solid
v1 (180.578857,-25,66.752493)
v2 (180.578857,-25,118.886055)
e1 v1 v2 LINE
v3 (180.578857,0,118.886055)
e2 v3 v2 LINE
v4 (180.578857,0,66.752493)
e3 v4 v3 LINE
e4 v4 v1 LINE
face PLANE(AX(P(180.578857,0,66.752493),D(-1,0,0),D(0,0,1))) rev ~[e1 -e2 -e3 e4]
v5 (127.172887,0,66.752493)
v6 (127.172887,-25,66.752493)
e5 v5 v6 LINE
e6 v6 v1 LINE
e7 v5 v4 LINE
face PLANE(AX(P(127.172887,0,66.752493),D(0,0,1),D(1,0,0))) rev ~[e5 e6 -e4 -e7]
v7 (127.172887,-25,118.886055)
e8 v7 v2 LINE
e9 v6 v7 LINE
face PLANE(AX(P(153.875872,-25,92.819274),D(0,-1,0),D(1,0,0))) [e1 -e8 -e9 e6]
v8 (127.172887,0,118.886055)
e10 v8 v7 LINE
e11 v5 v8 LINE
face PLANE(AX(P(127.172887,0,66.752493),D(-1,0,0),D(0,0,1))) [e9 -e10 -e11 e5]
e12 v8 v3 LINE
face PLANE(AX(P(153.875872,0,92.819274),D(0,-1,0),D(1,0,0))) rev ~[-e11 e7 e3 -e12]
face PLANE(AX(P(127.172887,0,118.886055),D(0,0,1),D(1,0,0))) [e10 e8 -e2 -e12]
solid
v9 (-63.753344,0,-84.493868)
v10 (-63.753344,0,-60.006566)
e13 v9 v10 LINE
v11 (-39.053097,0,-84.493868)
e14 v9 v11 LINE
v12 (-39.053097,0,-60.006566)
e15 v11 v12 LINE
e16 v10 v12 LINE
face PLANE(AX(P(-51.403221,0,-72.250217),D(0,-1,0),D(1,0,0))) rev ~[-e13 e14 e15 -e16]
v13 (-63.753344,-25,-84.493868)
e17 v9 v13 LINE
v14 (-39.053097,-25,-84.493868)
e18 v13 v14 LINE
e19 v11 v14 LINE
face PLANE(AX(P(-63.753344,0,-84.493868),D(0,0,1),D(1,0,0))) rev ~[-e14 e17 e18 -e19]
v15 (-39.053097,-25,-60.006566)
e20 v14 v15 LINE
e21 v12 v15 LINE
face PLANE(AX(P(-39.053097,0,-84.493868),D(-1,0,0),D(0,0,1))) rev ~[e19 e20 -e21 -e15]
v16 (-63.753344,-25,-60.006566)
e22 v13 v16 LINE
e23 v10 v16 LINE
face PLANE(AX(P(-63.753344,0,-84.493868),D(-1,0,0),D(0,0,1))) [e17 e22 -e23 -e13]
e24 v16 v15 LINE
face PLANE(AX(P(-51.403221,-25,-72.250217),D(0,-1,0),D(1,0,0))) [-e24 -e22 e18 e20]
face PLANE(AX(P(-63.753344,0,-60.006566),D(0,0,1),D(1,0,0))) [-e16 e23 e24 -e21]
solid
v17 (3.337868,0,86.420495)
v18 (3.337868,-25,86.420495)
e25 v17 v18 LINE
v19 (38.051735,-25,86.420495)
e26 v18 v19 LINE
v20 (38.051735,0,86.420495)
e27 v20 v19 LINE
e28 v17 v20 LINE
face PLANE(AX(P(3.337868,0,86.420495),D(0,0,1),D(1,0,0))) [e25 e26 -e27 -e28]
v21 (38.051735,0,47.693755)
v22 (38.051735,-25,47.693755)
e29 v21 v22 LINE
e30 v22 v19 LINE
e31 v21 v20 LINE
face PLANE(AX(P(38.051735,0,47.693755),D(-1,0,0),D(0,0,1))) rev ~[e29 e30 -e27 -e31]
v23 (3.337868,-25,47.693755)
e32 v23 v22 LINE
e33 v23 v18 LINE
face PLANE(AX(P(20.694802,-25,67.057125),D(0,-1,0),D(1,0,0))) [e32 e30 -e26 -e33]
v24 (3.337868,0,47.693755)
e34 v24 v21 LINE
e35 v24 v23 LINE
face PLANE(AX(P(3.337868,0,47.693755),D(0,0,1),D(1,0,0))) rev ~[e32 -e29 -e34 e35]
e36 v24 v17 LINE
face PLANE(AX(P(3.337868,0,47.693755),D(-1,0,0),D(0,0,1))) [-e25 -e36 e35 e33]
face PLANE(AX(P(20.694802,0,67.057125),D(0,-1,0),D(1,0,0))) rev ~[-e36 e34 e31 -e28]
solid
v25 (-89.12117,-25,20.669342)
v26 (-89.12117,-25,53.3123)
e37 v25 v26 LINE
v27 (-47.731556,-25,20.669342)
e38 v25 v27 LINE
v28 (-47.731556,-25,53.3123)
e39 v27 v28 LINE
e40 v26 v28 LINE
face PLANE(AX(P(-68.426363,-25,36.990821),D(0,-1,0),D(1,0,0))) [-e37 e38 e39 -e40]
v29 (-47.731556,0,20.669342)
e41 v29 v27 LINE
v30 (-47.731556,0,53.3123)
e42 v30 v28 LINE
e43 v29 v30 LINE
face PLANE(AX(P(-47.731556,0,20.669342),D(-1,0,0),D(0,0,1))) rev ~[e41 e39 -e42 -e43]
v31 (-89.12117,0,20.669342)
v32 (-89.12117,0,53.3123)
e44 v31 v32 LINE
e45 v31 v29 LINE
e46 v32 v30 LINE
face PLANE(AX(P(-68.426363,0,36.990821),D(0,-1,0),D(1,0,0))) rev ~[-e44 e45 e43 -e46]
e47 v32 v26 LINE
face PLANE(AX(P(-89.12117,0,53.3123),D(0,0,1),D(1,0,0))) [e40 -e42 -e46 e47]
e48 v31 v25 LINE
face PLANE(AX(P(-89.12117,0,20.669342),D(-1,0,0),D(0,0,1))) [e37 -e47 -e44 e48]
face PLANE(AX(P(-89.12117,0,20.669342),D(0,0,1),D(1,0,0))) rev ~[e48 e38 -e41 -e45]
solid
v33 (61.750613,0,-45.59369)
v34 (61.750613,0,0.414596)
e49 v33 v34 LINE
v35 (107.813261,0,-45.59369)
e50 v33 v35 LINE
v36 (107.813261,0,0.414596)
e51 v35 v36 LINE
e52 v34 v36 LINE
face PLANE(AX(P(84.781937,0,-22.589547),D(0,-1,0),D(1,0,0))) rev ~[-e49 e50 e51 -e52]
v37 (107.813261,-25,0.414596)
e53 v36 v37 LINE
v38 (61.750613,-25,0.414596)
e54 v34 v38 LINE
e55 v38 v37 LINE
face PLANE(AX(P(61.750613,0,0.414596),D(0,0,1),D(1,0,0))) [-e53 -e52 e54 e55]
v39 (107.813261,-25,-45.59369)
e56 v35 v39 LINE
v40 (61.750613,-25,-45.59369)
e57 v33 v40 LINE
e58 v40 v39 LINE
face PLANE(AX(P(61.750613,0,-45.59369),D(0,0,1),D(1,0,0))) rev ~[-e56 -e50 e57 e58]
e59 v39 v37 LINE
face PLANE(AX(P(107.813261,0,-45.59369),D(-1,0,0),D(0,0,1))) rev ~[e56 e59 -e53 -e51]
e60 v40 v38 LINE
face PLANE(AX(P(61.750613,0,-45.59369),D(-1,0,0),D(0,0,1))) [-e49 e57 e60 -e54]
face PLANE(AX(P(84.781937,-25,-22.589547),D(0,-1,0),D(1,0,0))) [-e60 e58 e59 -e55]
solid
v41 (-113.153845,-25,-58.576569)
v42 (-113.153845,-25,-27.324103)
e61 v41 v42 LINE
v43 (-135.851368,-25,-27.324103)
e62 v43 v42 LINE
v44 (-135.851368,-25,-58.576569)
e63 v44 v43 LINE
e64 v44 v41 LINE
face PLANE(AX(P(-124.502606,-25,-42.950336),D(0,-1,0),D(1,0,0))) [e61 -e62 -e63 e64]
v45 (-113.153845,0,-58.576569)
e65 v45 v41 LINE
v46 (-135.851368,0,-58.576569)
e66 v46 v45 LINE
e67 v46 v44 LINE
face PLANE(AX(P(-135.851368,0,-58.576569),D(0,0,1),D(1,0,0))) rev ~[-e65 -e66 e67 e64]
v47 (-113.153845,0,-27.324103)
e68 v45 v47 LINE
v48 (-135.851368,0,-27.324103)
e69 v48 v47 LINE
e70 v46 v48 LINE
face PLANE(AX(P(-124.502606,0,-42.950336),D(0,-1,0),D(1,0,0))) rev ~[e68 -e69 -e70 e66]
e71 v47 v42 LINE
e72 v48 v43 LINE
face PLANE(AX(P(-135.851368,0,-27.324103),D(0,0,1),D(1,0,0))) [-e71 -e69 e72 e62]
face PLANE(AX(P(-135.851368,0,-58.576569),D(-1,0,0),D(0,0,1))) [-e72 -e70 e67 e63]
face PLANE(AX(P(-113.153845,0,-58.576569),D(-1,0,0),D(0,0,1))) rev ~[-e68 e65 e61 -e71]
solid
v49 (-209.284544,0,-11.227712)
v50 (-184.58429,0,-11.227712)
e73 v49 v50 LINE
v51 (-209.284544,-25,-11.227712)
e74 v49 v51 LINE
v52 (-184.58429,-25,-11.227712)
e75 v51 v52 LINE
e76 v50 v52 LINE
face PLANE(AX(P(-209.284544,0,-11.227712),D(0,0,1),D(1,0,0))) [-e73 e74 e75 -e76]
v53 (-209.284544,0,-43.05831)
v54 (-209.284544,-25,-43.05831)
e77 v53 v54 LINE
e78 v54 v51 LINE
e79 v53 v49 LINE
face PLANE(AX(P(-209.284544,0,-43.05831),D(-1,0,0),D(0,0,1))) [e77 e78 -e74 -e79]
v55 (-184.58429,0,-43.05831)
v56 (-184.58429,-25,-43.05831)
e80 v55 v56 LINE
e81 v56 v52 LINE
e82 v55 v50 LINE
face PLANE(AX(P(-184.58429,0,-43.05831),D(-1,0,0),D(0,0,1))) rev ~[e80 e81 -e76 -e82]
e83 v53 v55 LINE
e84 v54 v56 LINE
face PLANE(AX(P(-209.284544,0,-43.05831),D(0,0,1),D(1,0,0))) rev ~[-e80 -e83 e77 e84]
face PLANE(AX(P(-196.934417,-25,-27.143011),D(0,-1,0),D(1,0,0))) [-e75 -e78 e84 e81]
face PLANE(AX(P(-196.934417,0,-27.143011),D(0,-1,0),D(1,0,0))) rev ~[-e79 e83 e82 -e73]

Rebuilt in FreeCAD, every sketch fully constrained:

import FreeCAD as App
import Part
import Sketcher
from FreeCAD import Vector
Q = App.Units.Quantity

doc = App.newDocument("Part")
body = doc.addObject("PartDesign::Body", "Body")
body.AllowCompound = True

sketch1 = body.newObject("Sketcher::SketchObject", "Sketch")
sketch1.AttachmentSupport = (doc.getObject("XZ_Plane"), [""])
sketch1.MapMode = "FlatFace"
sketch1.addGeometry(Part.LineSegment(Vector(-89, 53, 0), Vector(-89, 21, 0)), False)
sketch1.addGeometry(Part.LineSegment(Vector(-89, 21, 0), Vector(-48, 21, 0)), False)
sketch1.addGeometry(Part.LineSegment(Vector(-48, 21, 0), Vector(-48, 53, 0)), False)
sketch1.addGeometry(Part.LineSegment(Vector(-48, 53, 0), Vector(-89, 53, 0)), False)
sketch1.addGeometry(Part.LineSegment(Vector(3, 86, 0), Vector(3, 48, 0)), False)
sketch1.addGeometry(Part.LineSegment(Vector(3, 48, 0), Vector(38, 48, 0)), False)
sketch1.addGeometry(Part.LineSegment(Vector(38, 48, 0), Vector(38, 86, 0)), False)
sketch1.addGeometry(Part.LineSegment(Vector(38, 86, 0), Vector(3, 86, 0)), False)
sketch1.addGeometry(Part.LineSegment(Vector(127, 119, 0), Vector(127, 67, 0)), False)
sketch1.addGeometry(Part.LineSegment(Vector(127, 67, 0), Vector(181, 67, 0)), False)
sketch1.addGeometry(Part.LineSegment(Vector(181, 67, 0), Vector(181, 119, 0)), False)
sketch1.addGeometry(Part.LineSegment(Vector(181, 119, 0), Vector(127, 119, 0)), False)
sketch1.addGeometry(Part.LineSegment(Vector(62, 0, 0), Vector(62, -46, 0)), False)
sketch1.addGeometry(Part.LineSegment(Vector(62, -46, 0), Vector(108, -46, 0)), False)
sketch1.addGeometry(Part.LineSegment(Vector(108, -46, 0), Vector(108, 0, 0)), False)
sketch1.addGeometry(Part.LineSegment(Vector(108, 0, 0), Vector(62, 0, 0)), False)
sketch1.addConstraint(Sketcher.Constraint("Coincident", 0, 2, 1, 1))
sketch1.addConstraint(Sketcher.Constraint("Coincident", 1, 2, 2, 1))
sketch1.addConstraint(Sketcher.Constraint("Coincident", 2, 2, 3, 1))
sketch1.addConstraint(Sketcher.Constraint("Coincident", 3, 2, 0, 1))
sketch1.addConstraint(Sketcher.Constraint("Coincident", 4, 2, 5, 1))
sketch1.addConstraint(Sketcher.Constraint("Coincident", 5, 2, 6, 1))
sketch1.addConstraint(Sketcher.Constraint("Coincident", 6, 2, 7, 1))
sketch1.addConstraint(Sketcher.Constraint("Coincident", 7, 2, 4, 1))
sketch1.addConstraint(Sketcher.Constraint("Coincident", 8, 2, 9, 1))
sketch1.addConstraint(Sketcher.Constraint("Coincident", 9, 2, 10, 1))
sketch1.addConstraint(Sketcher.Constraint("Coincident", 10, 2, 11, 1))
sketch1.addConstraint(Sketcher.Constraint("Coincident", 11, 2, 8, 1))
sketch1.addConstraint(Sketcher.Constraint("Coincident", 12, 2, 13, 1))
sketch1.addConstraint(Sketcher.Constraint("Coincident", 13, 2, 14, 1))
sketch1.addConstraint(Sketcher.Constraint("Coincident", 14, 2, 15, 1))
sketch1.addConstraint(Sketcher.Constraint("Coincident", 15, 2, 12, 1))
sketch1.addConstraint(Sketcher.Constraint("Vertical", 0))
sketch1.addConstraint(Sketcher.Constraint("Horizontal", 1))
sketch1.addConstraint(Sketcher.Constraint("Vertical", 2))
sketch1.addConstraint(Sketcher.Constraint("Horizontal", 3))
sketch1.addConstraint(Sketcher.Constraint("Vertical", 4))
sketch1.addConstraint(Sketcher.Constraint("Horizontal", 5))
sketch1.addConstraint(Sketcher.Constraint("Vertical", 6))
sketch1.addConstraint(Sketcher.Constraint("Horizontal", 7))
sketch1.addConstraint(Sketcher.Constraint("Vertical", 8))
sketch1.addConstraint(Sketcher.Constraint("Horizontal", 9))
sketch1.addConstraint(Sketcher.Constraint("Vertical", 10))
sketch1.addConstraint(Sketcher.Constraint("Horizontal", 11))
sketch1.addConstraint(Sketcher.Constraint("Vertical", 12))
sketch1.addConstraint(Sketcher.Constraint("Horizontal", 13))
sketch1.addConstraint(Sketcher.Constraint("Vertical", 14))
sketch1.addConstraint(Sketcher.Constraint("Horizontal", 15))
sketch1.addConstraint(Sketcher.Constraint("DistanceY", 8, 2, 6, 2, Q("19.668002 mm")))
sketch1.addConstraint(Sketcher.Constraint("DistanceX", 9, 1, 9, 2, Q("53.405971 mm")))
sketch1.addConstraint(Sketcher.Constraint("DistanceY", 4, 2, 4, 1, Q("38.72674 mm")))
sketch1.addConstraint(Sketcher.Constraint("DistanceY", 8, 2, 8, 1, Q("52.133561 mm")))
sketch1.addConstraint(Sketcher.Constraint("DistanceY", -1, 1, 2, 2, Q("53.3123 mm")))
sketch1.addConstraint(Sketcher.Constraint("DistanceX", 1, 1, 1, 2, Q("41.389614 mm")))
sketch1.addConstraint(Sketcher.Constraint("DistanceX", 5, 1, 5, 2, Q("34.713867 mm")))
sketch1.addConstraint(Sketcher.Constraint("DistanceX", 13, 1, 13, 2, Q("46.062648 mm")))
sketch1.addConstraint(Sketcher.Constraint("DistanceY", 0, 2, 0, 1, Q("32.642957 mm")))
sketch1.addConstraint(Sketcher.Constraint("DistanceY", 12, 2, 12, 1, Q("46.008285 mm")))
sketch1.addConstraint(Sketcher.Constraint("DistanceX", 0, 2, -1, 1, Q("89.12117 mm")))
sketch1.addConstraint(Sketcher.Constraint("DistanceX", -1, 1, 4, 2, Q("3.337868 mm")))
sketch1.addConstraint(Sketcher.Constraint("DistanceY", 12, 2, -1, 1, Q("45.59369 mm")))
sketch1.addConstraint(Sketcher.Constraint("DistanceX", -1, 1, 13, 2, Q("107.813261 mm")))
sketch1.addConstraint(Sketcher.Constraint("DistanceX", 5, 2, 8, 2, Q("89.121151 mm")))
sketch1.addConstraint(Sketcher.Constraint("DistanceY", 14, 2, 5, 2, Q("47.27916 mm")))
pad1 = body.newObject("PartDesign::Pad", "Pad")
pad1.Profile = sketch1
pad1.Length = 25
body2 = doc.addObject("PartDesign::Body", "Body001")
body2.AllowCompound = True

sketch2 = body2.newObject("Sketcher::SketchObject", "Sketch001")
sketch2.AttachmentSupport = (doc.getObject("XZ_Plane001"), [""])
sketch2.MapMode = "FlatFace"
sketch2.addGeometry(Part.LineSegment(Vector(-209, -11, 0), Vector(-209, -43, 0)), False)
sketch2.addGeometry(Part.LineSegment(Vector(-209, -43, 0), Vector(-185, -43, 0)), False)
sketch2.addGeometry(Part.LineSegment(Vector(-185, -43, 0), Vector(-185, -11, 0)), False)
sketch2.addGeometry(Part.LineSegment(Vector(-185, -11, 0), Vector(-209, -11, 0)), False)
sketch2.addGeometry(Part.LineSegment(Vector(-136, -27, 0), Vector(-136, -59, 0)), False)
sketch2.addGeometry(Part.LineSegment(Vector(-136, -59, 0), Vector(-113, -59, 0)), False)
sketch2.addGeometry(Part.LineSegment(Vector(-113, -59, 0), Vector(-113, -27, 0)), False)
sketch2.addGeometry(Part.LineSegment(Vector(-113, -27, 0), Vector(-136, -27, 0)), False)
sketch2.addGeometry(Part.LineSegment(Vector(-64, -60, 0), Vector(-64, -84, 0)), False)
sketch2.addGeometry(Part.LineSegment(Vector(-64, -84, 0), Vector(-39, -84, 0)), False)
sketch2.addGeometry(Part.LineSegment(Vector(-39, -84, 0), Vector(-39, -60, 0)), False)
sketch2.addGeometry(Part.LineSegment(Vector(-39, -60, 0), Vector(-64, -60, 0)), False)
sketch2.addConstraint(Sketcher.Constraint("Coincident", 0, 2, 1, 1))
sketch2.addConstraint(Sketcher.Constraint("Coincident", 1, 2, 2, 1))
sketch2.addConstraint(Sketcher.Constraint("Coincident", 2, 2, 3, 1))
sketch2.addConstraint(Sketcher.Constraint("Coincident", 3, 2, 0, 1))
sketch2.addConstraint(Sketcher.Constraint("Coincident", 4, 2, 5, 1))
sketch2.addConstraint(Sketcher.Constraint("Coincident", 5, 2, 6, 1))
sketch2.addConstraint(Sketcher.Constraint("Coincident", 6, 2, 7, 1))
sketch2.addConstraint(Sketcher.Constraint("Coincident", 7, 2, 4, 1))
sketch2.addConstraint(Sketcher.Constraint("Coincident", 8, 2, 9, 1))
sketch2.addConstraint(Sketcher.Constraint("Coincident", 9, 2, 10, 1))
sketch2.addConstraint(Sketcher.Constraint("Coincident", 10, 2, 11, 1))
sketch2.addConstraint(Sketcher.Constraint("Coincident", 11, 2, 8, 1))
sketch2.addConstraint(Sketcher.Constraint("Vertical", 0))
sketch2.addConstraint(Sketcher.Constraint("Horizontal", 1))
sketch2.addConstraint(Sketcher.Constraint("Vertical", 2))
sketch2.addConstraint(Sketcher.Constraint("Horizontal", 3))
sketch2.addConstraint(Sketcher.Constraint("Vertical", 4))
sketch2.addConstraint(Sketcher.Constraint("Horizontal", 5))
sketch2.addConstraint(Sketcher.Constraint("Vertical", 6))
sketch2.addConstraint(Sketcher.Constraint("Horizontal", 7))
sketch2.addConstraint(Sketcher.Constraint("Vertical", 8))
sketch2.addConstraint(Sketcher.Constraint("Horizontal", 9))
sketch2.addConstraint(Sketcher.Constraint("Vertical", 10))
sketch2.addConstraint(Sketcher.Constraint("Horizontal", 11))
sketch2.addConstraint(Sketcher.Constraint("DistanceX", 0, 2, 5, 2, Q("96.1307 mm")))
sketch2.addConstraint(Sketcher.Constraint("DistanceX", 5, 2, 8, 2, Q("49.4005 mm")))
sketch2.addConstraint(Sketcher.Constraint("DistanceY", 8, 2, 5, 2, Q("25.917299 mm")))
sketch2.addConstraint(Sketcher.Constraint("DistanceX", 1, 1, 1, 2, Q("24.700254 mm")))
sketch2.addConstraint(Sketcher.Constraint("DistanceX", 5, 1, 5, 2, Q("22.697523 mm")))
sketch2.addConstraint(Sketcher.Constraint("DistanceX", 9, 1, 9, 2, Q("24.700247 mm")))
sketch2.addConstraint(Sketcher.Constraint("DistanceY", 0, 2, 0, 1, Q("31.830598 mm")))
sketch2.addConstraint(Sketcher.Constraint("DistanceY", 4, 2, 4, 1, Q("31.252466 mm")))
sketch2.addConstraint(Sketcher.Constraint("DistanceY", 8, 2, 8, 1, Q("24.487302 mm")))
sketch2.addConstraint(Sketcher.Constraint("DistanceY", 0, 2, -1, 1, Q("43.05831 mm")))
sketch2.addConstraint(Sketcher.Constraint("DistanceX", 1, 2, -1, 1, Q("184.58429 mm")))
sketch2.addConstraint(Sketcher.Constraint("DistanceY", 4, 2, -1, 1, Q("58.576569 mm")))
pad2 = body2.newObject("PartDesign::Pad", "Pad001")
pad2.Profile = sketch2
pad2.Length = 25

doc.recompute()
